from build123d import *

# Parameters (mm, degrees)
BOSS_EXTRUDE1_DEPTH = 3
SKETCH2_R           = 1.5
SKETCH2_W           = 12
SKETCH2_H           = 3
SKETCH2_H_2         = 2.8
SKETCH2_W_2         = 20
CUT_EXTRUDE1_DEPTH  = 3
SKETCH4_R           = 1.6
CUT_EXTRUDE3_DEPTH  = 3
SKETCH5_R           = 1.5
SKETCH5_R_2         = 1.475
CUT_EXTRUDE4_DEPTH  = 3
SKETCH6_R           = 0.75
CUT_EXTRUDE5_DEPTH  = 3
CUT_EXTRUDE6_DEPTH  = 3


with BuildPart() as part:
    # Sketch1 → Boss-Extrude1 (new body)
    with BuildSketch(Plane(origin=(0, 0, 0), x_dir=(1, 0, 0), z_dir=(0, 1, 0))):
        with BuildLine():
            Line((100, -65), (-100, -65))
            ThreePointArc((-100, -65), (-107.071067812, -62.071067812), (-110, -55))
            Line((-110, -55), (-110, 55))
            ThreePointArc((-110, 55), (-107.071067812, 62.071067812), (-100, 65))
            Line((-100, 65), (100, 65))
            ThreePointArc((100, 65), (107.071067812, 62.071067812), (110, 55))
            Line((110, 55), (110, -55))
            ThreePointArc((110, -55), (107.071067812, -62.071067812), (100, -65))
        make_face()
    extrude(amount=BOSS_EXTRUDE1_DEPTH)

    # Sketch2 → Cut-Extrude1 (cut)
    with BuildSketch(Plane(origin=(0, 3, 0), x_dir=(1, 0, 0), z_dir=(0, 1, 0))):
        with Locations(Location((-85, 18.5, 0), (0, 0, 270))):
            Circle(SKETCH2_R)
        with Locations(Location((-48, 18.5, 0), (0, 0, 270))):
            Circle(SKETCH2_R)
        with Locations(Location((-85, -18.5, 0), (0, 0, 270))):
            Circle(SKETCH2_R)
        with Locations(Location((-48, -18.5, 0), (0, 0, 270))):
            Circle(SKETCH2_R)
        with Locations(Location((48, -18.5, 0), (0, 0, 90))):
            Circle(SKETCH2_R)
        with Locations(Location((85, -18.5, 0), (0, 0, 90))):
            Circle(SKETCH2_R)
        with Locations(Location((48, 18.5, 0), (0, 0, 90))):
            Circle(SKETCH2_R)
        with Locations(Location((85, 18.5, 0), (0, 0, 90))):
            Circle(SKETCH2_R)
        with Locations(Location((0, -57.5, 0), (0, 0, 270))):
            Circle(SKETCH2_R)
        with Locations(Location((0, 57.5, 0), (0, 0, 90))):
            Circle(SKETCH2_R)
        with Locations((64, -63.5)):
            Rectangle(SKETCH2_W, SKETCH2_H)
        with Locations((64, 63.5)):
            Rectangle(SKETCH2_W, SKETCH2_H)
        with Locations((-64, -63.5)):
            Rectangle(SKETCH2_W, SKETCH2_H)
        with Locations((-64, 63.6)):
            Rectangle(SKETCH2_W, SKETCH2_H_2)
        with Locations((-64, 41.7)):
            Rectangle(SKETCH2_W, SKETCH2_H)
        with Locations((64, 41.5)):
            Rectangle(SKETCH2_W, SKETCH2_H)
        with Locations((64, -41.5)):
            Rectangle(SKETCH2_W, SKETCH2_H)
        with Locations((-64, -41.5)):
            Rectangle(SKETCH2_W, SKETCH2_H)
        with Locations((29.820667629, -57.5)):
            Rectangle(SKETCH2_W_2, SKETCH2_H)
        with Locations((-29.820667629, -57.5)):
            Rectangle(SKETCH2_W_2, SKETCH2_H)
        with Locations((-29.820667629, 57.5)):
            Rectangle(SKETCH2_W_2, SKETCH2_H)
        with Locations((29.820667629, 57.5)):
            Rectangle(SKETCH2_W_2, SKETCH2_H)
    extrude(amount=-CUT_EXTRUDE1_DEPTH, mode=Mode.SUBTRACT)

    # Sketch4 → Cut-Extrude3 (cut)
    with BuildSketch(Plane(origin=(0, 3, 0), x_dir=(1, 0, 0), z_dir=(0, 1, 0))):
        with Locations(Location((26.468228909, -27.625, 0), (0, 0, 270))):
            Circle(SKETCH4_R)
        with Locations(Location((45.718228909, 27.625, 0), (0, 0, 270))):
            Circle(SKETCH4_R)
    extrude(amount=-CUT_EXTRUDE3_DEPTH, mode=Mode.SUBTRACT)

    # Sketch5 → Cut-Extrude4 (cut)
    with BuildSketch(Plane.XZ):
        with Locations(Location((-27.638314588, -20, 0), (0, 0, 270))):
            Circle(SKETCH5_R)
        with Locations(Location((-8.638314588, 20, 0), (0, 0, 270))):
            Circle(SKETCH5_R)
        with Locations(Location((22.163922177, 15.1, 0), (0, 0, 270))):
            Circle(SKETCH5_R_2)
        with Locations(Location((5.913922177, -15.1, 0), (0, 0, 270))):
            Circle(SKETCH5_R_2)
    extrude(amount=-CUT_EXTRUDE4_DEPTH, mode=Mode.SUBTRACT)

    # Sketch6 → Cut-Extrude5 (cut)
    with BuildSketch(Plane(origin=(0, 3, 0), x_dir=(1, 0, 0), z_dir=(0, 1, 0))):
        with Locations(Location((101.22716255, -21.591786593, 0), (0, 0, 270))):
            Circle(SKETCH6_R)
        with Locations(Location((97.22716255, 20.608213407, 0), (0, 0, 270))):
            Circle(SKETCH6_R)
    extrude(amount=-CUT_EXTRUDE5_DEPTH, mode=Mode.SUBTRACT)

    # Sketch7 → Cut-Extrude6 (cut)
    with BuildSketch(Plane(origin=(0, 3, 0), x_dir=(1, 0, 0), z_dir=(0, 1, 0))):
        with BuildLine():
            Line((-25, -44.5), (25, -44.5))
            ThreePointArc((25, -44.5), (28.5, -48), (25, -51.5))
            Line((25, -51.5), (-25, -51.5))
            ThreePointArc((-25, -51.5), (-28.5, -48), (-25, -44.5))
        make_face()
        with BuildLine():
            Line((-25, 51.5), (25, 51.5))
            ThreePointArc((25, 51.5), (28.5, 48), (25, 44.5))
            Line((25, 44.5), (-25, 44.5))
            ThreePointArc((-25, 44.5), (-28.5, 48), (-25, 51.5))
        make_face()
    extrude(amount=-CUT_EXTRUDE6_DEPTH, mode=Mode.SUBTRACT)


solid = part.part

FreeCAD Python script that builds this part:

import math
import FreeCAD as App
import Part
import Sketcher

V = App.Vector
Q = App.Units.Quantity


def add_polygon(sketch, points):
    """Adds a closed chain of lines whose ends are joined by coincident constraints."""
    first, n = sketch.GeometryCount, len(points)
    for a, b in zip(points, points[1:] + points[:1]):
        sketch.addGeometry(Part.LineSegment(App.Vector(*a, 0), App.Vector(*b, 0)), False)
    for i in range(n):
        sketch.addConstraint(Sketcher.Constraint("Coincident", first + i, 2, first + (i + 1) % n, 1))

doc = App.newDocument("Part")
body = doc.addObject("PartDesign::Body", "Body")

# Sketch on XZ plane
sketch1 = body.newObject("Sketcher::SketchObject", "Sketch")
sketch1.AttachmentSupport = (doc.getObject("XZ_Plane"), [""])
sketch1.MapMode = "FlatFace"
sketch1.addGeometry([
    Part.LineSegment(V(-100, 65, 0), V(100, 65, 0)),  # 0
    Part.ArcOfCircle(Part.Circle(V(100, 55, 0), V(0, 0, 1), 10), math.radians(0), math.radians(90)),  # 1
    Part.LineSegment(V(110, 55, 0), V(110, -55, 0)),  # 2
    Part.ArcOfCircle(Part.Circle(V(100, -55, 0), V(0, 0, 1), 10), math.radians(-90), math.radians(0)),  # 3
    Part.LineSegment(V(100, -65, 0), V(-100, -65, 0)),  # 4
    Part.ArcOfCircle(Part.Circle(V(-100, -55, 0), V(0, 0, 1), 10), math.radians(180), math.radians(270)),  # 5
    Part.LineSegment(V(-110, -55, 0), V(-110, 55, 0)),  # 6
    Part.ArcOfCircle(Part.Circle(V(-100, 55, 0), V(0, 0, 1), 10), math.radians(90), math.radians(180)),  # 7
], False)
sketch1.addConstraint([
    Sketcher.Constraint("Tangent", 0, 2, 1, 2),
    Sketcher.Constraint("Tangent", 1, 1, 2, 1),
    Sketcher.Constraint("Tangent", 2, 2, 3, 2),
    Sketcher.Constraint("Tangent", 3, 1, 4, 1),
    Sketcher.Constraint("Tangent", 4, 2, 5, 2),
    Sketcher.Constraint("Tangent", 5, 1, 6, 1),
    Sketcher.Constraint("Tangent", 6, 2, 7, 2),
    Sketcher.Constraint("Tangent", 7, 1, 0, 1),
    Sketcher.Constraint("Horizontal", 0),
    Sketcher.Constraint("Vertical", 2),
    Sketcher.Constraint("Horizontal", 4),
    Sketcher.Constraint("Vertical", 6),
    Sketcher.Constraint("Equal", 1, 3),
    Sketcher.Constraint("Equal", 3, 5),
    Sketcher.Constraint("Equal", 5, 7),
    Sketcher.Constraint("Symmetric", 1, 3, 5, 3, -1, 1),
    Sketcher.Constraint("Radius", 1, Q("10 mm")),
    Sketcher.Constraint("DistanceX", 0, 1, 0, 2, Q("200 mm")),
    Sketcher.Constraint("DistanceY", 2, 2, 2, 1, Q("110 mm")),
])
pad1 = body.newObject("PartDesign::Pad", "Pad")
pad1.Profile = sketch1
pad1.Length = 3
pad1.Reversed = True

# Sketch on XZ plane
sketch2 = body.newObject("Sketcher::SketchObject", "Sketch001")
sketch2.AttachmentSupport = (doc.getObject("XZ_Plane"), [""])
sketch2.MapMode = "FlatFace"
sketch2.AttachmentOffset = App.Placement(V(0, 0, -3), App.Rotation())
sketch2.addGeometry(Part.Circle(V(-85, -18.5, 0), V(0, 0, 1), 1.5), False)  # 0
sketch2.addGeometry(Part.Circle(V(-48, -18.5, 0), V(0, 0, 1), 1.5), False)  # 1
sketch2.addGeometry(Part.Circle(V(-85, 18.5, 0), V(0, 0, 1), 1.5), False)  # 2
sketch2.addGeometry(Part.Circle(V(-48, 18.5, 0), V(0, 0, 1), 1.5), False)  # 3
sketch2.addGeometry(Part.Circle(V(48, 18.5, 0), V(0, 0, 1), 1.5), False)  # 4
sketch2.addGeometry(Part.Circle(V(85, 18.5, 0), V(0, 0, 1), 1.5), False)  # 5
sketch2.addGeometry(Part.Circle(V(48, -18.5, 0), V(0, 0, 1), 1.5), False)  # 6
sketch2.addGeometry(Part.Circle(V(85, -18.5, 0), V(0, 0, 1), 1.5), False)  # 7
sketch2.addGeometry(Part.Circle(V(0, 57.5, 0), V(0, 0, 1), 1.5), False)  # 8
sketch2.addGeometry(Part.Circle(V(0, -57.5, 0), V(0, 0, 1), 1.5), False)  # 9
add_polygon(sketch2, [(58, 62), (58, 65), (70, 65), (70, 62)])  # lines 10-13
add_polygon(sketch2, [(58, -65), (58, -62), (70, -62), (70, -65)])  # lines 14-17
add_polygon(sketch2, [(-70, 62), (-70, 65), (-58, 65), (-58, 62)])  # lines 18-21
add_polygon(sketch2, [(-70, -65), (-70, -62.2), (-58, -62.2), (-58, -65)])  # lines 22-25
add_polygon(sketch2, [(-70, -43.2), (-70, -40.2), (-58, -40.2), (-58, -43.2)])  # lines 26-29
add_polygon(sketch2, [(58, -43), (58, -40), (70, -40), (70, -43)])  # lines 30-33
add_polygon(sketch2, [(58, 40), (58, 43), (70, 43), (70, 40)])  # lines 34-37
add_polygon(sketch2, [(-70, 40), (-70, 43), (-58, 43), (-58, 40)])  # lines 38-41
add_polygon(sketch2, [(19.820668, 56), (19.820668, 59), (39.820668, 59), (39.820668, 56)])  # lines 42-45
add_polygon(sketch2, [(-39.820668, 56), (-39.820668, 59), (-19.820668, 59), (-19.820668, 56)])  # lines 46-49
add_polygon(sketch2, [(-39.820668, -59), (-39.820668, -56), (-19.820668, -56), (-19.820668, -59)])  # lines 50-53
add_polygon(sketch2, [(19.820668, -59), (19.820668, -56), (39.820668, -56), (39.820668, -59)])  # lines 54-57
sketch2.addConstraint([
    Sketcher.Constraint("Vertical", 10),
    Sketcher.Constraint("Horizontal", 11),
    Sketcher.Constraint("Vertical", 12),
    Sketcher.Constraint("Horizontal", 13),
    Sketcher.Constraint("Vertical", 14),
    Sketcher.Constraint("Horizontal", 15),
    Sketcher.Constraint("Vertical", 16),
    Sketcher.Constraint("Horizontal", 17),
    Sketcher.Constraint("Vertical", 18),
    Sketcher.Constraint("Horizontal", 19),
    Sketcher.Constraint("Vertical", 20),
    Sketcher.Constraint("Horizontal", 21),
    Sketcher.Constraint("Vertical", 22),
    Sketcher.Constraint("Horizontal", 23),
    Sketcher.Constraint("Vertical", 24),
    Sketcher.Constraint("Horizontal", 25),
    Sketcher.Constraint("Vertical", 26),
    Sketcher.Constraint("Horizontal", 27),
    Sketcher.Constraint("Vertical", 28),
    Sketcher.Constraint("Horizontal", 29),
    Sketcher.Constraint("Vertical", 30),
    Sketcher.Constraint("Horizontal", 31),
    Sketcher.Constraint("Vertical", 32),
    Sketcher.Constraint("Horizontal", 33),
    Sketcher.Constraint("Vertical", 34),
    Sketcher.Constraint("Horizontal", 35),
    Sketcher.Constraint("Vertical", 36),
    Sketcher.Constraint("Horizontal", 37),
    Sketcher.Constraint("Vertical", 38),
    Sketcher.Constraint("Horizontal", 39),
    Sketcher.Constraint("Vertical", 40),
    Sketcher.Constraint("Horizontal", 41),
    Sketcher.Constraint("Vertical", 42),
    Sketcher.Constraint("Horizontal", 43),
    Sketcher.Constraint("Vertical", 44),
    Sketcher.Constraint("Horizontal", 45),
    Sketcher.Constraint("Vertical", 46),
    Sketcher.Constraint("Horizontal", 47),
    Sketcher.Constraint("Vertical", 48),
    Sketcher.Constraint("Horizontal", 49),
    Sketcher.Constraint("Vertical", 50),
    Sketcher.Constraint("Horizontal", 51),
    Sketcher.Constraint("Vertical", 52),
    Sketcher.Constraint("Horizontal", 53),
    Sketcher.Constraint("Vertical", 54),
    Sketcher.Constraint("Horizontal", 55),
    Sketcher.Constraint("Vertical", 56),
    Sketcher.Constraint("Horizontal", 57),
    Sketcher.Constraint("Equal", 0, 1),
    Sketcher.Constraint("Equal", 1, 2),
    Sketcher.Constraint("Equal", 2, 3),
    Sketcher.Constraint("Equal", 3, 4),
    Sketcher.Constraint("Equal", 4, 5),
    Sketcher.Constraint("Equal", 5, 6),
    Sketcher.Constraint("Equal", 6, 7),
    Sketcher.Constraint("Equal", 7, 8),
    Sketcher.Constraint("Equal", 8, 9),
    Sketcher.Constraint("Symmetric", 1, 3, 4, 3, -1, 1),
    Sketcher.Constraint("Symmetric", 0, 3, 5, 3, -1, 1),
    Sketcher.Constraint("Symmetric", 3, 3, 6, 3, -1, 1),
    Sketcher.Constraint("Symmetric", 2, 3, 7, 3, -1, 1),
    Sketcher.Constraint("Symmetric", 8, 3, 9, 3, -1, 1),
    Sketcher.Constraint("Symmetric", 16, 2, 18, 2, -1, 1),
    Sketcher.Constraint("Symmetric", 14, 2, 20, 2, -1, 1),
    Sketcher.Constraint("Symmetric", 10, 2, 24, 2, -1, 1),
    Sketcher.Constraint("Symmetric", 32, 2, 38, 2, -1, 1),
    Sketcher.Constraint("Symmetric", 30, 2, 40, 2, -1, 1),
    Sketcher.Constraint("Symmetric", 44, 2, 50, 2, -1, 1),
    Sketcher.Constraint("Symmetric", 42, 2, 52, 2, -1, 1),
    Sketcher.Constraint("Symmetric", 48, 2, 54, 2, -1, 1),
    Sketcher.Constraint("Symmetric", 46, 2, 56, 2, -1, 1),
    Sketcher.Constraint("Symmetric", 3, 3, 4, 3, -2),
    Sketcher.Constraint("Symmetric", 2, 3, 5, 3, -2),
    Sketcher.Constraint("Symmetric", 11, 2, 18, 2, -2),
    Sketcher.Constraint("Symmetric", 13, 2, 20, 2, -2),
    Sketcher.Constraint("Symmetric", 35, 2, 38, 2, -2),
    Sketcher.Constraint("Symmetric", 37, 2, 40, 2, -2),
    Sketcher.Constraint("Symmetric", 43, 2, 46, 2, -2),
    Sketcher.Constraint("Symmetric", 45, 2, 48, 2, -2),
    Sketcher.Constraint("PointOnObject", 8, 3, -2),
    Sketcher.Constraint("Horizontal", 0, 3, 1, 3),
    Sketcher.Constraint("Vertical", 21, 2, 22, 2),
    Sketcher.Constraint("Vertical", 25, 2, 26, 2),
    Sketcher.Constraint("Vertical", 24, 2, 27, 2),
    Sketcher.Constraint("Vertical", 17, 2, 30, 2),
    Sketcher.Constraint("Vertical", 16, 2, 31, 2),
    Sketcher.Constraint("Equal", 20, 26),
    Sketcher.Constraint("Equal", 28, 30),
    Sketcher.Constraint("Equal", 40, 42),
    Sketcher.Constraint("Diameter", 0, Q("3 mm")),
    Sketcher.Constraint("DistanceX", 11, 1, 11, 2, Q("12 mm")),
    Sketcher.Constraint("DistanceX", 43, 1, 43, 2, Q("20 mm")),
    Sketcher.Constraint("DistanceY", 10, 1, 10, 2, Q("3 mm")),
    Sketcher.Constraint("DistanceY", 22, 1, 22, 2, Q("2.8 mm")),
    Sketcher.Constraint("DistanceX", 0, 3, -1, 1, Q("85 mm")),
    Sketcher.Constraint("DistanceX", 1, 3, -1, 1, Q("48 mm")),
    Sketcher.Constraint("DistanceX", -1, 1, 10, 2, Q("58 mm")),
    Sketcher.Constraint("DistanceY", -1, 1, 10, 2, Q("65 mm")),
    Sketcher.Constraint("DistanceY", 30, 2, -1, 1, Q("40 mm")),
    Sketcher.Constraint("DistanceY", -1, 1, 42, 2, Q("59 mm")),
    Sketcher.Constraint("DistanceY", 0, 3, 2, 3, Q("37 mm")),
    Sketcher.Constraint("DistanceY", 3, 3, 8, 3, Q("39 mm")),
    Sketcher.Constraint("DistanceY", 22, 2, 26, 2, Q("22 mm")),
    Sketcher.Constraint("DistanceX", -1, 1, 42, 2, Q("19.820668 mm")),
])
pocket1 = body.newObject("PartDesign::Pocket", "Pocket")
pocket1.Profile = sketch2
pocket1.Length = 3
pocket1.Reversed = True

# Sketch on XZ plane
sketch3 = body.newObject("Sketcher::SketchObject", "Sketch002")
sketch3.AttachmentSupport = (doc.getObject("XZ_Plane"), [""])
sketch3.MapMode = "FlatFace"
sketch3.AttachmentOffset = App.Placement(V(0, 0, -3), App.Rotation())
sketch3.addGeometry([
    Part.Circle(V(26.468229, 27.625, 0), V(0, 0, 1), 1.6),
    Part.Circle(V(45.718229, -27.625, 0), V(0, 0, 1), 1.6),
], False)
sketch3.addConstraint([
    Sketcher.Constraint("Equal", 0, 1),
    Sketcher.Constraint("Diameter", 0, Q("3.2 mm")),
    Sketcher.Constraint("DistanceX", 0, 3, 1, 3, Q("19.25 mm")),
    Sketcher.Constraint("DistanceY", 1, 3, 0, 3, Q("55.25 mm")),
    Sketcher.Constraint("DistanceY", -1, 1, 0, 3, Q("27.625 mm")),
    Sketcher.Constraint("DistanceX", -1, 1, 0, 3, Q("26.468229 mm")),
])
pocket2 = body.newObject("PartDesign::Pocket", "Pocket001")
pocket2.Profile = sketch3
pocket2.Length = 3
pocket2.Reversed = True

# Sketch on XZ plane
sketch4 = body.newObject("Sketcher::SketchObject", "Sketch003")
sketch4.AttachmentSupport = (doc.getObject("XZ_Plane"), [""])
sketch4.MapMode = "FlatFace"
sketch4.addGeometry([
    Part.Circle(V(-27.638315, -20, 0), V(0, 0, 1), 1.5),
    Part.Circle(V(-8.638315, 20, 0), V(0, 0, 1), 1.5),
    Part.Circle(V(22.163922, 15.1, 0), V(0, 0, 1), 1.475),
    Part.Circle(V(5.913922, -15.1, 0), V(0, 0, 1), 1.475),
], False)
sketch4.addConstraint([
    Sketcher.Constraint("Equal", 0, 1),
    Sketcher.Constraint("Equal", 2, 3),
    Sketcher.Constraint("Diameter", 0, Q("3 mm")),
    Sketcher.Constraint("Diameter", 2, Q("2.95 mm")),
    Sketcher.Constraint("DistanceY", 0, 3, -1, 1, Q("20 mm")),
    Sketcher.Constraint("DistanceY", -1, 1, 1, 3, Q("20 mm")),
    Sketcher.Constraint("DistanceX", 0, 3, 1, 3, Q("19 mm")),
    Sketcher.Constraint("DistanceY", -1, 1, 2, 3, Q("15.1 mm")),
    Sketcher.Constraint("DistanceY", 3, 3, -1, 1, Q("15.1 mm")),
    Sketcher.Constraint("DistanceX", 3, 3, 2, 3, Q("16.25 mm")),
    Sketcher.Constraint("DistanceX", 0, 3, -1, 1, Q("27.638315 mm")),
    Sketcher.Constraint("DistanceX", -1, 1, 2, 3, Q("22.163922 mm")),
])
pocket3 = body.newObject("PartDesign::Pocket", "Pocket002")
pocket3.Profile = sketch4
pocket3.Length = 3

# Sketch on XZ plane
sketch5 = body.newObject("Sketcher::SketchObject", "Sketch004")
sketch5.AttachmentSupport = (doc.getObject("XZ_Plane"), [""])
sketch5.MapMode = "FlatFace"
sketch5.AttachmentOffset = App.Placement(V(0, 0, -3), App.Rotation())
sketch5.addGeometry([
    Part.Circle(V(101.227163, 21.591787, 0), V(0, 0, 1), 0.75),
    Part.Circle(V(97.227163, -20.608213, 0), V(0, 0, 1), 0.75),
], False)
sketch5.addConstraint([
    Sketcher.Constraint("Equal", 0, 1),
    Sketcher.Constraint("Diameter", 0, Q("1.5 mm")),
    Sketcher.Constraint("DistanceX", 1, 3, 0, 3, Q("4 mm")),
    Sketcher.Constraint("DistanceY", 1, 3, 0, 3, Q("42.2 mm")),
    Sketcher.Constraint("DistanceX", -1, 1, 0, 3, Q("101.227163 mm")),
    Sketcher.Constraint("DistanceY", -1, 1, 0, 3, Q("21.591787 mm")),
])
pocket4 = body.newObject("PartDesign::Pocket", "Pocket003")
pocket4.Profile = sketch5
pocket4.Length = 3
pocket4.Reversed = True

# Sketch on XZ plane
sketch6 = body.newObject("Sketcher::SketchObject", "Sketch005")
sketch6.AttachmentSupport = (doc.getObject("XZ_Plane"), [""])
sketch6.MapMode = "FlatFace"
sketch6.AttachmentOffset = App.Placement(V(0, 0, -3), App.Rotation())
sketch6.addGeometry([
    Part.LineSegment(V(25, 44.5, 0), V(-25, 44.5, 0)),  # 0
    Part.ArcOfCircle(Part.Circle(V(-25, 48, 0), V(0, 0, 1), 3.5), math.radians(90), math.radians(270)),  # 1
    Part.LineSegment(V(-25, 51.5, 0), V(25, 51.5, 0)),  # 2
    Part.ArcOfCircle(Part.Circle(V(25, 48, 0), V(0, 0, 1), 3.5), math.radians(-90), math.radians(90)),  # 3
    Part.LineSegment(V(25, -51.5, 0), V(-25, -51.5, 0)),  # 4
    Part.ArcOfCircle(Part.Circle(V(-25, -48, 0), V(0, 0, 1), 3.5), math.radians(90), math.radians(270)),  # 5
    Part.LineSegment(V(-25, -44.5, 0), V(25, -44.5, 0)),  # 6
    Part.ArcOfCircle(Part.Circle(V(25, -48, 0), V(0, 0, 1), 3.5), math.radians(-90), math.radians(90)),  # 7
], False)
sketch6.addConstraint([
    Sketcher.Constraint("Tangent", 0, 2, 1, 2),
    Sketcher.Constraint("Tangent", 1, 1, 2, 1),
    Sketcher.Constraint("Tangent", 2, 2, 3, 2),
    Sketcher.Constraint("Tangent", 3, 1, 0, 1),
    Sketcher.Constraint("Tangent", 4, 2, 5, 2),
    Sketcher.Constraint("Tangent", 5, 1, 6, 1),
    Sketcher.Constraint("Tangent", 6, 2, 7, 2),
    Sketcher.Constraint("Tangent", 7, 1, 4, 1),
    Sketcher.Constraint("Horizontal", 0),
    Sketcher.Constraint("Horizontal", 2),
    Sketcher.Constraint("Horizontal", 4),
    Sketcher.Constraint("Horizontal", 6),
    Sketcher.Constraint("Equal", 3, 5),
    Sketcher.Constraint("Symmetric", 3, 3, 5, 3, -1, 1),
    Sketcher.Constraint("Vertical", 1, 3, 5, 3),
    Sketcher.Constraint("Vertical", 3, 3, 7, 3),
    Sketcher.Constraint("Radius", 1, Q("3.5 mm")),
    Sketcher.Constraint("DistanceX", 0, 2, 0, 1, Q("50 mm")),
    Sketcher.Constraint("DistanceY", -1, 1, 1, 3, Q("48 mm")),
])
pocket5 = body.newObject("PartDesign::Pocket", "Pocket004")
pocket5.Profile = sketch6
pocket5.Length = 3
pocket5.Reversed = True

doc.recompute()
